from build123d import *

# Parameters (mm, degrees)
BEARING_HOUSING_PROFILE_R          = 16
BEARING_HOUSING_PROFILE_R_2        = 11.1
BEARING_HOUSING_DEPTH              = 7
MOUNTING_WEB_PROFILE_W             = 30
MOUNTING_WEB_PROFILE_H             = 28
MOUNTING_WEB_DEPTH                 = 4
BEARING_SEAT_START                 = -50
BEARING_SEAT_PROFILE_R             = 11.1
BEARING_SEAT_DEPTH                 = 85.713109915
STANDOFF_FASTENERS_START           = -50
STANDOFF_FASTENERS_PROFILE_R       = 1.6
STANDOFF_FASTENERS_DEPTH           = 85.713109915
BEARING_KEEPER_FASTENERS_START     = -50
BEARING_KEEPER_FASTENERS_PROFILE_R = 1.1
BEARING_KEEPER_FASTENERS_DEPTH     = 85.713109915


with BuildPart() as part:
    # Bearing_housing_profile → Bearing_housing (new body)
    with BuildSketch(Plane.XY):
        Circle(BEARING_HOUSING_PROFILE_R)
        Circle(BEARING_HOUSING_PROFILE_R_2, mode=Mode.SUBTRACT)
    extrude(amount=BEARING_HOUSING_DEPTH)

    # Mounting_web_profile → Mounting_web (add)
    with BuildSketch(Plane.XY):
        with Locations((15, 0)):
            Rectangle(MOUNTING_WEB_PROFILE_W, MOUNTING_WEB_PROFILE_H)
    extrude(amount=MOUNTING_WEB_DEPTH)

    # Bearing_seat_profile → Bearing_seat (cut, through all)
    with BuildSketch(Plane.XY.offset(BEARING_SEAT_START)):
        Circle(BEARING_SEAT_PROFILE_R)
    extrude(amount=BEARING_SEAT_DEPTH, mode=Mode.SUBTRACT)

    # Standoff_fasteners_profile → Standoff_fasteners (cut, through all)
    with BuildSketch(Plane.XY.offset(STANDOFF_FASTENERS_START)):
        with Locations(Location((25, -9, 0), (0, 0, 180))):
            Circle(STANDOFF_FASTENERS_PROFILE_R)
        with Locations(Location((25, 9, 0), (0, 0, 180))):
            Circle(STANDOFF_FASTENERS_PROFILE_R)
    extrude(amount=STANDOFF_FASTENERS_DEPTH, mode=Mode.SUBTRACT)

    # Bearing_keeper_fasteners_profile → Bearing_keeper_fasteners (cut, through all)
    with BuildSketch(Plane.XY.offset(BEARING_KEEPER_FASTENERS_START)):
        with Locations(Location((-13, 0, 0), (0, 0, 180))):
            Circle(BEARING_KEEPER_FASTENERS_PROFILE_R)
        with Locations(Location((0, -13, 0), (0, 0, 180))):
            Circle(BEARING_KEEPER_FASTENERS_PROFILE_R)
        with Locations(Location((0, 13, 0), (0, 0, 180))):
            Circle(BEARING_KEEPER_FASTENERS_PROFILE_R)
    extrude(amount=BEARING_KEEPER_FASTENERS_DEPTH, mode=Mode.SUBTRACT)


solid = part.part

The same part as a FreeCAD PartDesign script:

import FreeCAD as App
import Part
import Sketcher
from FreeCAD import Vector
Q = App.Units.Quantity

doc = App.newDocument("Part")
body = doc.addObject("PartDesign::Body", "Body")

# Sketch on XY plane
sketch1 = doc.addObject("Sketcher::SketchObject", "Sketch")
body.addObject(sketch1)
sketch1.AttachmentSupport = (doc.XY_Plane, [""])
sketch1.MapMode = "FlatFace"
sketch1.addGeometry([
    Part.Circle(Vector(0, 0, 0), Vector(0, 0, 1), 16),
    Part.Circle(Vector(0, 0, 0), Vector(0, 0, 1), 11),
], False)
sketch1.addConstraint([
    Sketcher.Constraint("Coincident", 0, 3, -1, 1),
    Sketcher.Constraint("Coincident", 1, 3, -1, 1),
    Sketcher.Constraint("Diameter", 0, Q("32 mm")),
    Sketcher.Constraint("Diameter", 1, Q("22.2 mm")),
])
pad1 = doc.addObject("PartDesign::Pad", "Pad")
body.addObject(pad1)
pad1.Profile = sketch1
pad1.Length = 7

# Sketch on XY plane
sketch2 = doc.addObject("Sketcher::SketchObject", "Sketch001")
body.addObject(sketch2)
sketch2.AttachmentSupport = (doc.XY_Plane, [""])
sketch2.MapMode = "FlatFace"
sketch2.addGeometry([
    Part.LineSegment(Vector(0, 14, 0), Vector(0, -14, 0)),
    Part.LineSegment(Vector(0, -14, 0), Vector(30, -14, 0)),
    Part.LineSegment(Vector(30, -14, 0), Vector(30, 14, 0)),
    Part.LineSegment(Vector(30, 14, 0), Vector(0, 14, 0)),
], False)
sketch2.addConstraint([
    Sketcher.Constraint("Coincident", 0, 2, 1, 1),
    Sketcher.Constraint("Coincident", 1, 2, 2, 1),
    Sketcher.Constraint("Coincident", 2, 2, 3, 1),
    Sketcher.Constraint("Coincident", 3, 2, 0, 1),
    Sketcher.Constraint("Vertical", 0),
    Sketcher.Constraint("Horizontal", 1),
    Sketcher.Constraint("Vertical", 2),
    Sketcher.Constraint("Horizontal", 3),
    Sketcher.Constraint("Symmetric", 0, 2, 3, 2, -1, 1),
    Sketcher.Constraint("DistanceX", 1, 1, 1, 2, Q("30 mm")),
    Sketcher.Constraint("DistanceY", 0, 2, 0, 1, Q("28 mm")),
])
pad2 = doc.addObject("PartDesign::Pad", "Pad001")
body.addObject(pad2)
pad2.Profile = sketch2
pad2.Length = 4

# Sketch on XY plane
sketch3 = doc.addObject("Sketcher::SketchObject", "Sketch002")
body.addObject(sketch3)
sketch3.AttachmentSupport = (doc.XY_Plane, [""])
sketch3.MapMode = "FlatFace"
sketch3.AttachmentOffset = App.Placement(Vector(0, 0, -50), App.Rotation())
sketch3.addGeometry(Part.Circle(Vector(0, 0, 0), Vector(0, 0, 1), 11), False)
sketch3.addConstraint([
    Sketcher.Constraint("Coincident", 0, 3, -1, 1),
    Sketcher.Constraint("Diameter", 0, Q("22.2 mm")),
])
pocket1 = doc.addObject("PartDesign::Pocket", "Pocket")
body.addObject(pocket1)
pocket1.Profile = sketch3
pocket1.Type = "ThroughAll"
pocket1.Reversed = True

# Sketch on XY plane
sketch4 = doc.addObject("Sketcher::SketchObject", "Sketch003")
body.addObject(sketch4)
sketch4.AttachmentSupport = (doc.XY_Plane, [""])
sketch4.MapMode = "FlatFace"
sketch4.AttachmentOffset = App.Placement(Vector(0, 0, -50), App.Rotation())
sketch4.addGeometry([
    Part.Circle(Vector(25, -9, 0), Vector(0, 0, 1), 1.6),
    Part.Circle(Vector(25, 9, 0), Vector(0, 0, 1), 1.6),
], False)
sketch4.addConstraint([
    Sketcher.Constraint("Equal", 0, 1),
    Sketcher.Constraint("Symmetric", 0, 3, 1, 3, -1),
    Sketcher.Constraint("Diameter", 0, Q("3.2 mm")),
    Sketcher.Constraint("DistanceX", -1, 1, 0, 3, Q("25 mm")),
    Sketcher.Constraint("DistanceY", 0, 3, -1, 1, Q("9 mm")),
])
pocket2 = doc.addObject("PartDesign::Pocket", "Pocket001")
body.addObject(pocket2)
pocket2.Profile = sketch4
pocket2.Type = "ThroughAll"
pocket2.Reversed = True

# Sketch on XY plane
sketch5 = doc.addObject("Sketcher::SketchObject", "Sketch004")
body.addObject(sketch5)
sketch5.AttachmentSupport = (doc.XY_Plane, [""])
sketch5.MapMode = "FlatFace"
sketch5.AttachmentOffset = App.Placement(Vector(0, 0, -50), App.Rotation())
sketch5.addGeometry([
    Part.Circle(Vector(-13, 0, 0), Vector(0, 0, 1), 1.1),
    Part.Circle(Vector(0, -13, 0), Vector(0, 0, 1), 1.1),
    Part.Circle(Vector(0, 13, 0), Vector(0, 0, 1), 1.1),
], False)
sketch5.addConstraint([
    Sketcher.Constraint("Equal", 0, 1),
    Sketcher.Constraint("Equal", 1, 2),
    Sketcher.Constraint("Symmetric", 1, 3, 2, 3, -1, 1),
    Sketcher.Constraint("PointOnObject", 0, 3, -1),
    Sketcher.Constraint("PointOnObject", 1, 3, -2),
    Sketcher.Constraint("Diameter", 0, Q("2.2 mm")),
    Sketcher.Constraint("DistanceX", 0, 3, -1, 1, Q("13 mm")),
    Sketcher.Constraint("DistanceY", 1, 3, -1, 1, Q("13 mm")),
])
pocket3 = doc.addObject("PartDesign::Pocket", "Pocket002")
body.addObject(pocket3)
pocket3.Profile = sketch5
pocket3.Type = "ThroughAll"
pocket3.Reversed = True

doc.recompute()
